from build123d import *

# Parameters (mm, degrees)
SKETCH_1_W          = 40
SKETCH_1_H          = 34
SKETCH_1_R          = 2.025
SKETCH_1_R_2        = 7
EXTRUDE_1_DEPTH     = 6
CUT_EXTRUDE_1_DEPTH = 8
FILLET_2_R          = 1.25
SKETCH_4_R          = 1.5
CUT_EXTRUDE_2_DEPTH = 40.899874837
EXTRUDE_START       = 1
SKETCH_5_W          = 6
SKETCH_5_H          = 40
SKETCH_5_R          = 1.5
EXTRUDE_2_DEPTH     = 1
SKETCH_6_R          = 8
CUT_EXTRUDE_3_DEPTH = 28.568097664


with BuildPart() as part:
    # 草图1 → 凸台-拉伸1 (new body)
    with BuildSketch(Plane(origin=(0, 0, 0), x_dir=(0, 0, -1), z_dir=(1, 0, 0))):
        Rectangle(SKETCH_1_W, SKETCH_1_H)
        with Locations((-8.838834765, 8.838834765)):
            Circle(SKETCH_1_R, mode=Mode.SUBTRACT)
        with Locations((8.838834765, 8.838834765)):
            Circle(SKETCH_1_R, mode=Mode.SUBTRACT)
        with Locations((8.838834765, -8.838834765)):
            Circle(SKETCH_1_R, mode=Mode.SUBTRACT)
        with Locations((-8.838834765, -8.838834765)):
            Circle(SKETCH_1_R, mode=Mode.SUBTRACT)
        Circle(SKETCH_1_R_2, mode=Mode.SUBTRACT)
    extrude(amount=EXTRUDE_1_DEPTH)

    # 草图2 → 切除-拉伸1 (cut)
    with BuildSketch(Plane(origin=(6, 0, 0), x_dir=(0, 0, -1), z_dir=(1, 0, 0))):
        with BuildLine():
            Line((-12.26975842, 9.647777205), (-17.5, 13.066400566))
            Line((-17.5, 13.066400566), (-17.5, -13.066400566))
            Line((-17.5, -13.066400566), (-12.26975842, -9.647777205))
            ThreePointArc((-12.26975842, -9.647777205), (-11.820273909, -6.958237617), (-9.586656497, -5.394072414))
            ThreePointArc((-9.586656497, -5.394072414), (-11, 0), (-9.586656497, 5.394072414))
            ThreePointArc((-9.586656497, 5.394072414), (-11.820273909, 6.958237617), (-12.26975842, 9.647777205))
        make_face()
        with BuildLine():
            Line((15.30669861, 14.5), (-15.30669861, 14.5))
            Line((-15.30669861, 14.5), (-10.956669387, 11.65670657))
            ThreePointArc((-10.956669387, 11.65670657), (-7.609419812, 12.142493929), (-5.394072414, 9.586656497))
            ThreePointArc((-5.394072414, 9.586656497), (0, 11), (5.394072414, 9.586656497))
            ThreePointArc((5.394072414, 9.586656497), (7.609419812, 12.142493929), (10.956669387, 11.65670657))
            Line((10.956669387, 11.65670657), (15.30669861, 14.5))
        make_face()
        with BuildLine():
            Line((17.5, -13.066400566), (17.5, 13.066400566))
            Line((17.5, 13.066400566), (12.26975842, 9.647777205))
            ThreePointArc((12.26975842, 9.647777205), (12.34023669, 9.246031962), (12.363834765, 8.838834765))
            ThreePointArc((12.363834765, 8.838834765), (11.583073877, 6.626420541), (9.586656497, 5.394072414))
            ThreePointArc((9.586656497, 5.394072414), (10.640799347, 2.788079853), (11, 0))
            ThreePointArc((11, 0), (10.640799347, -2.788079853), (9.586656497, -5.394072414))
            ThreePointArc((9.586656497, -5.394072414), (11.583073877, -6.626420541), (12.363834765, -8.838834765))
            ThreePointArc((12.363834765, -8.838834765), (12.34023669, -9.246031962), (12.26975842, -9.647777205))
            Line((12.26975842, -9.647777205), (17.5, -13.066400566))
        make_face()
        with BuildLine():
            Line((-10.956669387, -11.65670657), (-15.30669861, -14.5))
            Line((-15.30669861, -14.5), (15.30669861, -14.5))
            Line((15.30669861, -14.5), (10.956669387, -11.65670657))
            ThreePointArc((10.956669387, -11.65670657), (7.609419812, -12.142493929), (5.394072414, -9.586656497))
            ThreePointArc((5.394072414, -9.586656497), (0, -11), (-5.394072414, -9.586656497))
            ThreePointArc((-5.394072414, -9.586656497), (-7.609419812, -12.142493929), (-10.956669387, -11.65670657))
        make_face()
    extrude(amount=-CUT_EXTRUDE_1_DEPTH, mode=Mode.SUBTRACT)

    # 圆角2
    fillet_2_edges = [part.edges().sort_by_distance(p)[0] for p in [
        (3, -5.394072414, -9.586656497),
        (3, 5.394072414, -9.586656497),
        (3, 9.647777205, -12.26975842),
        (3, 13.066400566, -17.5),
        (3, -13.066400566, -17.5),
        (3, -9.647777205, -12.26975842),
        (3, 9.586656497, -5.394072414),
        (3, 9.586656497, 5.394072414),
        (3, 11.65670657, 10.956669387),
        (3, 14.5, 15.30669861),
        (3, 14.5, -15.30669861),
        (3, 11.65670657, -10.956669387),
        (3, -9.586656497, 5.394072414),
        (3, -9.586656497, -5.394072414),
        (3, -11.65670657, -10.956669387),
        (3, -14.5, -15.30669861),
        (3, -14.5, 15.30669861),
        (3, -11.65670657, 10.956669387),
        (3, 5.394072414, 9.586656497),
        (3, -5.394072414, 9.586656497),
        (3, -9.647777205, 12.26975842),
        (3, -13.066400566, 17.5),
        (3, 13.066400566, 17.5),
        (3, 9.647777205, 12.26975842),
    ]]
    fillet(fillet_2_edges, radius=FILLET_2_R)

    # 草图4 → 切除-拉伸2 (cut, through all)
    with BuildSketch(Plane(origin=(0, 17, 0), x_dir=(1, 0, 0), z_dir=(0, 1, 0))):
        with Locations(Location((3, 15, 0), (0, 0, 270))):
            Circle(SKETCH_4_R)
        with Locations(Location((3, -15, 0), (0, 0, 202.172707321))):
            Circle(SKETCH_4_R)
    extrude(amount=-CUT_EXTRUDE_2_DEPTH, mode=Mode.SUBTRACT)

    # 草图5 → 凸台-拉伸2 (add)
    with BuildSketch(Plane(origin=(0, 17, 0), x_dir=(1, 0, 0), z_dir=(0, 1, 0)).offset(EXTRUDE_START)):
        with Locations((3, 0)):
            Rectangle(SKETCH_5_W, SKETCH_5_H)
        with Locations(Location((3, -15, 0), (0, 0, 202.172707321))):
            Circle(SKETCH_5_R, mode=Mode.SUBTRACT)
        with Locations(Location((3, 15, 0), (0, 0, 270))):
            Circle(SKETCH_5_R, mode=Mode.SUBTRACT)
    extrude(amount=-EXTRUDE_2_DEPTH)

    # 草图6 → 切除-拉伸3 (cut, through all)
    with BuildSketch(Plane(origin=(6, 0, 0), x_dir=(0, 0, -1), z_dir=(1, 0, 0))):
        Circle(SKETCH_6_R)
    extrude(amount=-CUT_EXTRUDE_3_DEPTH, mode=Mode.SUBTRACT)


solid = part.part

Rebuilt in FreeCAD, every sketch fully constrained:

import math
import FreeCAD as App
import Part
import Sketcher

V = App.Vector


def edges_at(feature, points):
    """Names of the edges that pass closest to the given points."""
    edges = feature.Shape.Edges
    near = lambda p: min(range(len(edges)), key=lambda i: edges[i].distToShape(Part.Vertex(*p))[0])
    return sorted({f"Edge{near(p) + 1}" for p in points})

doc = App.newDocument("Part")
body = doc.addObject("PartDesign::Body", "Body")

# Sketch on YZ plane
sketch1 = body.newObject("Sketcher::SketchObject", "Sketch")
sketch1.AttachmentSupport = (doc.getObject("YZ_Plane"), [""])
sketch1.MapMode = "FlatFace"
sketch1.addGeometry(Part.LineSegment(V(17, 20, 0), V(-17, 20, 0)), False)
sketch1.addGeometry(Part.LineSegment(V(-17, 20, 0), V(-17, -20, 0)), False)
sketch1.addGeometry(Part.LineSegment(V(-17, -20, 0), V(17, -20, 0)), False)
sketch1.addGeometry(Part.LineSegment(V(17, -20, 0), V(17, 20, 0)), False)
sketch1.addGeometry(Part.Circle(V(-8.8, 8.8, 0), V(0, 0, 1), 2), False)
sketch1.addGeometry(Part.Circle(V(-8.8, -8.8, 0), V(0, 0, 1), 2), False)
sketch1.addGeometry(Part.Circle(V(8.8, 8.8, 0), V(0, 0, 1), 2), False)
sketch1.addGeometry(Part.Circle(V(0, 0, 0), V(0, 0, 1), 7), False)
sketch1.addGeometry(Part.Circle(V(8.8, -8.8, 0), V(0, 0, 1), 2), False)
sketch1.addConstraint(Sketcher.Constraint("Coincident", 0, 2, 1, 1))
sketch1.addConstraint(Sketcher.Constraint("Coincident", 1, 2, 2, 1))
sketch1.addConstraint(Sketcher.Constraint("Coincident", 2, 2, 3, 1))
sketch1.addConstraint(Sketcher.Constraint("Coincident", 3, 2, 0, 1))
sketch1.addConstraint(Sketcher.Constraint("Horizontal", 0))
sketch1.addConstraint(Sketcher.Constraint("Vertical", 1))
sketch1.addConstraint(Sketcher.Constraint("Horizontal", 2))
sketch1.addConstraint(Sketcher.Constraint("Vertical", 3))
sketch1.addConstraint(Sketcher.Constraint("Coincident", 7, 3, -1, 1))
sketch1.addConstraint(Sketcher.Constraint("Equal", 4, 5))
sketch1.addConstraint(Sketcher.Constraint("Equal", 5, 6))
sketch1.addConstraint(Sketcher.Constraint("Equal", 6, 8))
sketch1.addConstraint(Sketcher.Constraint("Symmetric", 5, 3, 6, 3, -1, 1))
sketch1.addConstraint(Sketcher.Constraint("Symmetric", 4, 3, 8, 3, -1, 1))
sketch1.addConstraint(Sketcher.Constraint("Symmetric", 0, 2, 2, 2, -1, 1))
sketch1.addConstraint(Sketcher.Constraint("Symmetric", 4, 3, 6, 3, -2))
sketch1.addConstraint(Sketcher.Constraint("Diameter", 7, 14.0))
sketch1.addConstraint(Sketcher.Constraint("Diameter", 4, 4.05))
sketch1.addConstraint(Sketcher.Constraint("DistanceX", 0, 2, 0, 1, 34.0))
sketch1.addConstraint(Sketcher.Constraint("DistanceY", 1, 2, 1, 1, 40.0))
sketch1.addConstraint(Sketcher.Constraint("DistanceY", 5, 3, 4, 3, 17.67767))
sketch1.addConstraint(Sketcher.Constraint("DistanceX", 4, 3, 6, 3, 17.67767))
pad1 = body.newObject("PartDesign::Pad", "Pad")
pad1.Profile = sketch1
pad1.Length = 6

# Sketch on YZ plane
sketch2 = body.newObject("Sketcher::SketchObject", "Sketch001")
sketch2.AttachmentSupport = (doc.getObject("YZ_Plane"), [""])
sketch2.MapMode = "FlatFace"
sketch2.AttachmentOffset = App.Placement(V(0, 0, 6), App.Rotation())
sketch2.addGeometry(Part.LineSegment(V(9.6, 12.3, 0), V(13.1, 17.5, 0)), False)
sketch2.addGeometry(Part.LineSegment(V(13.1, 17.5, 0), V(-13.1, 17.5, 0)), False)
sketch2.addGeometry(Part.LineSegment(V(-13.1, 17.5, 0), V(-9.6, 12.3, 0)), False)
sketch2.addGeometry(Part.ArcOfCircle(Part.Circle(V(-8.8, 8.8, 0), V(0, 0, 1), 3.5), math.radians(12), math.radians(103)), False)
sketch2.addGeometry(Part.ArcOfCircle(Part.Circle(V(0, 0, 0), V(0, 0, 1), 11), math.radians(61), math.radians(119)), False)
sketch2.addGeometry(Part.ArcOfCircle(Part.Circle(V(8.8, 8.8, 0), V(0, 0, 1), 3.5), math.radians(77), math.radians(168)), False)
sketch2.addGeometry(Part.LineSegment(V(14.5, -15.3, 0), V(14.5, 15.3, 0)), False)
sketch2.addGeometry(Part.LineSegment(V(14.5, 15.3, 0), V(11.7, 11, 0)), False)
sketch2.addGeometry(Part.ArcOfCircle(Part.Circle(V(8.8, 8.8, 0), V(0, 0, 1), 3.5), math.radians(-78), math.radians(37)), False)
sketch2.addGeometry(Part.ArcOfCircle(Part.Circle(V(0, 0, 0), V(0, 0, 1), 11), math.radians(-29), math.radians(29)), False)
sketch2.addGeometry(Part.ArcOfCircle(Part.Circle(V(8.8, -8.8, 0), V(0, 0, 1), 3.5), math.radians(-37), math.radians(78)), False)
sketch2.addGeometry(Part.LineSegment(V(11.7, -11, 0), V(14.5, -15.3, 0)), False)
sketch2.addGeometry(Part.LineSegment(V(-13.1, -17.5, 0), V(13.1, -17.5, 0)), False)
sketch2.addGeometry(Part.LineSegment(V(13.1, -17.5, 0), V(9.6, -12.3, 0)), False)
sketch2.addGeometry(Part.ArcOfCircle(Part.Circle(V(8.8, -8.8, 0), V(0, 0, 1), 3.5), math.radians(-90), math.radians(-76.73)), False)
sketch2.addGeometry(Part.ArcOfCircle(Part.Circle(V(8.8, -8.8, 0), V(0, 0, 1), 3.5), math.radians(-168), math.radians(-90)), False)
sketch2.addGeometry(Part.ArcOfCircle(Part.Circle(V(0, 0, 0), V(0, 0, 1), 11), math.radians(-90), math.radians(-61)), False)
sketch2.addGeometry(Part.ArcOfCircle(Part.Circle(V(0, 0, 0), V(0, 0, 1), 11), math.radians(-119), math.radians(-90)), False)
sketch2.addGeometry(Part.ArcOfCircle(Part.Circle(V(-8.8, -8.8, 0), V(0, 0, 1), 3.5), math.radians(-90), math.radians(-12)), False)
sketch2.addGeometry(Part.ArcOfCircle(Part.Circle(V(-8.8, -8.8, 0), V(0, 0, 1), 3.5), math.radians(-103.27), math.radians(-90)), False)
sketch2.addGeometry(Part.LineSegment(V(-9.6, -12.3, 0), V(-13.1, -17.5, 0)), False)
sketch2.addGeometry(Part.LineSegment(V(-11.7, 11, 0), V(-14.5, 15.3, 0)), False)
sketch2.addGeometry(Part.LineSegment(V(-14.5, 15.3, 0), V(-14.5, -15.3, 0)), False)
sketch2.addGeometry(Part.LineSegment(V(-14.5, -15.3, 0), V(-11.7, -11, 0)), False)
sketch2.addGeometry(Part.ArcOfCircle(Part.Circle(V(-8.8, -8.8, 0), V(0, 0, 1), 3.5), math.radians(102), math.radians(217)), False)
sketch2.addGeometry(Part.ArcOfCircle(Part.Circle(V(0, 0, 0), V(0, 0, 1), 11), math.radians(151), math.radians(209)), False)
sketch2.addGeometry(Part.ArcOfCircle(Part.Circle(V(-8.8, 8.8, 0), V(0, 0, 1), 3.5), math.radians(143), math.radians(258)), False)
sketch2.addConstraint(Sketcher.Constraint("Coincident", 0, 2, 1, 1))
sketch2.addConstraint(Sketcher.Constraint("Coincident", 1, 2, 2, 1))
sketch2.addConstraint(Sketcher.Constraint("Coincident", 2, 2, 3, 2))
sketch2.addConstraint(Sketcher.Constraint("Coincident", 3, 1, 4, 2))
sketch2.addConstraint(Sketcher.Constraint("Coincident", 4, 1, 5, 2))
sketch2.addConstraint(Sketcher.Constraint("Coincident", 5, 1, 0, 1))
sketch2.addConstraint(Sketcher.Constraint("Coincident", 6, 2, 7, 1))
sketch2.addConstraint(Sketcher.Constraint("Coincident", 7, 2, 8, 2))
sketch2.addConstraint(Sketcher.Constraint("Coincident", 8, 1, 9, 2))
sketch2.addConstraint(Sketcher.Constraint("Coincident", 9, 1, 10, 2))
sketch2.addConstraint(Sketcher.Constraint("Coincident", 10, 1, 11, 1))
sketch2.addConstraint(Sketcher.Constraint("Coincident", 11, 2, 6, 1))
sketch2.addConstraint(Sketcher.Constraint("Coincident", 12, 2, 13, 1))
sketch2.addConstraint(Sketcher.Constraint("Coincident", 13, 2, 14, 2))
sketch2.addConstraint(Sketcher.Constraint("Tangent", 14, 1, 15, 2))
sketch2.addConstraint(Sketcher.Constraint("Coincident", 15, 1, 16, 2))
sketch2.addConstraint(Sketcher.Constraint("Tangent", 16, 1, 17, 2))
sketch2.addConstraint(Sketcher.Constraint("Coincident", 17, 1, 18, 2))
sketch2.addConstraint(Sketcher.Constraint("Tangent", 18, 1, 19, 2))
sketch2.addConstraint(Sketcher.Constraint("Coincident", 19, 1, 20, 1))
sketch2.addConstraint(Sketcher.Constraint("Coincident", 20, 2, 12, 1))
sketch2.addConstraint(Sketcher.Constraint("Coincident", 21, 2, 22, 1))
sketch2.addConstraint(Sketcher.Constraint("Coincident", 22, 2, 23, 1))
sketch2.addConstraint(Sketcher.Constraint("Coincident", 23, 2, 24, 2))
sketch2.addConstraint(Sketcher.Constraint("Coincident", 24, 1, 25, 2))
sketch2.addConstraint(Sketcher.Constraint("Coincident", 25, 1, 26, 2))
sketch2.addConstraint(Sketcher.Constraint("Coincident", 26, 1, 21, 1))
sketch2.addConstraint(Sketcher.Constraint("Horizontal", 1))
sketch2.addConstraint(Sketcher.Constraint("Vertical", 6))
sketch2.addConstraint(Sketcher.Constraint("Horizontal", 12))
sketch2.addConstraint(Sketcher.Constraint("Vertical", 22))
sketch2.addConstraint(Sketcher.Constraint("Coincident", 4, 3, -1, 1))
sketch2.addConstraint(Sketcher.Constraint("Coincident", 9, 3, -1, 1))
sketch2.addConstraint(Sketcher.Constraint("Coincident", 16, 3, -1, 1))
sketch2.addConstraint(Sketcher.Constraint("Coincident", 25, 3, -1, 1))
sketch2.addConstraint(Sketcher.Constraint("Coincident", 8, 3, 5, 3))
sketch2.addConstraint(Sketcher.Constraint("Coincident", 14, 3, 10, 3))
sketch2.addConstraint(Sketcher.Constraint("Coincident", 24, 3, 18, 3))
sketch2.addConstraint(Sketcher.Constraint("Coincident", 26, 3, 3, 3))
sketch2.addConstraint(Sketcher.Constraint("Equal", 3, 5))
sketch2.addConstraint(Sketcher.Constraint("Equal", 5, 8))
sketch2.addConstraint(Sketcher.Constraint("Equal", 4, 9))
sketch2.addConstraint(Sketcher.Constraint("Equal", 8, 10))
sketch2.addConstraint(Sketcher.Constraint("Equal", 10, 14))
sketch2.addConstraint(Sketcher.Constraint("Equal", 14, 15))
sketch2.addConstraint(Sketcher.Constraint("Equal", 9, 16))
sketch2.addConstraint(Sketcher.Constraint("Equal", 16, 17))
sketch2.addConstraint(Sketcher.Constraint("Equal", 15, 18))
sketch2.addConstraint(Sketcher.Constraint("Equal", 18, 19))
sketch2.addConstraint(Sketcher.Constraint("Equal", 19, 24))
sketch2.addConstraint(Sketcher.Constraint("Equal", 17, 25))
sketch2.addConstraint(Sketcher.Constraint("Equal", 24, 26))
sketch2.addConstraint(Sketcher.Constraint("Symmetric", 3, 3, 10, 3, -1, 1))
sketch2.addConstraint(Sketcher.Constraint("Symmetric", 5, 3, 18, 3, -1, 1))
sketch2.addConstraint(Sketcher.Constraint("Symmetric", 1, 2, 12, 2, -1, 1))
sketch2.addConstraint(Sketcher.Constraint("Symmetric", 11, 2, 21, 2, -1, 1))
sketch2.addConstraint(Sketcher.Constraint("Symmetric", 3, 3, 5, 3, -2))
sketch2.addConstraint(Sketcher.Constraint("PointOnObject", 16, 1, -2))
sketch2.addConstraint(Sketcher.Constraint("Parallel", 0, 7))
sketch2.addConstraint(Sketcher.Constraint("Parallel", 2, 11))
sketch2.addConstraint(Sketcher.Constraint("Parallel", 11, 13))
sketch2.addConstraint(Sketcher.Constraint("Parallel", 7, 20))
sketch2.addConstraint(Sketcher.Constraint("Parallel", 13, 21))
sketch2.addConstraint(Sketcher.Constraint("Parallel", 20, 23))
sketch2.addConstraint(Sketcher.Constraint("Horizontal", 2, 2, 5, 1))
sketch2.addConstraint(Sketcher.Constraint("Horizontal", 13, 2, 19, 1))
sketch2.addConstraint(Sketcher.Constraint("Horizontal", 6, 2, 21, 2))
sketch2.addConstraint(Sketcher.Constraint("Horizontal", 11, 2, 22, 2))
sketch2.addConstraint(Sketcher.Constraint("Horizontal", 10, 1, 23, 2))
sketch2.addConstraint(Sketcher.Constraint("Vertical", 15, 3, 14, 1))
sketch2.addConstraint(Sketcher.Constraint("Vertical", 26, 3, 18, 1))
sketch2.addConstraint(Sketcher.Constraint("Radius", 4, 11.0))
sketch2.addConstraint(Sketcher.Constraint("Radius", 3, 3.525))
sketch2.addConstraint(Sketcher.Constraint("DistanceY", -1, 1, 0, 2, 17.5))
sketch2.addConstraint(Sketcher.Constraint("DistanceX", -1, 1, 6, 2, 14.5))
sketch2.addConstraint(Sketcher.Constraint("DistanceX", 1, 2, 1, 1, 26.132801))
sketch2.addConstraint(Sketcher.Constraint("DistanceY", -1, 1, 6, 2, 15.306699))
sketch2.addConstraint(Sketcher.Constraint("DistanceY", 3, 1, 2, 2, 2.683102))
sketch2.addConstraint(Sketcher.Constraint("DistanceY", -1, 1, 2, 2, 12.269758))
sketch2.addConstraint(Sketcher.Constraint("DistanceY", -1, 1, 7, 2, 10.956669))
pocket1 = body.newObject("PartDesign::Pocket", "Pocket")
pocket1.Profile = sketch2
pocket1.Length = 8
doc.recompute()

fillet = body.newObject("PartDesign::Fillet", "Fillet")
fillet.Base = (pocket1, edges_at(pocket1, [
    (3, -5.394, -9.587),
    (3, 5.394, -9.587),
    (3, 9.648, -12.27),
    (3, 13.066, -17.5),
    (3, -13.066, -17.5),
    (3, -9.648, -12.27),
    (3, 9.587, -5.394),
    (3, 9.587, 5.394),
    (3, 11.657, 10.957),
    (3, 14.5, 15.307),
    (3, 14.5, -15.307),
    (3, 11.657, -10.957),
    (3, -9.587, 5.394),
    (3, -9.587, -5.394),
    (3, -11.657, -10.957),
    (3, -14.5, -15.307),
    (3, -14.5, 15.307),
    (3, -11.657, 10.957),
    (3, 5.394, 9.587),
    (3, -5.394, 9.587),
    (3, -9.648, 12.27),
    (3, -13.066, 17.5),
    (3, 13.066, 17.5),
    (3, 9.648, 12.27),
]))
fillet.Radius = 1.25

# Sketch on XZ plane
sketch3 = body.newObject("Sketcher::SketchObject", "Sketch002")
sketch3.AttachmentSupport = (doc.getObject("XZ_Plane"), [""])
sketch3.MapMode = "FlatFace"
sketch3.AttachmentOffset = App.Placement(V(0, 0, -17), App.Rotation())
sketch3.addGeometry(Part.Circle(V(3, -15, 0), V(0, 0, 1), 1.5), False)
sketch3.addGeometry(Part.Circle(V(3, 15, 0), V(0, 0, 1), 1.5), False)
sketch3.addConstraint(Sketcher.Constraint("Equal", 0, 1))
sketch3.addConstraint(Sketcher.Constraint("Symmetric", 0, 3, 1, 3, -1))
sketch3.addConstraint(Sketcher.Constraint("Diameter", 0, 3.0))
sketch3.addConstraint(Sketcher.Constraint("DistanceX", -1, 1, 0, 3, 3.0))
sketch3.addConstraint(Sketcher.Constraint("DistanceY", 0, 3, -1, 1, 15.0))
pocket2 = body.newObject("PartDesign::Pocket", "Pocket001")
pocket2.Profile = sketch3
pocket2.Type = "ThroughAll"
pocket2.Reversed = True

# Sketch on XZ plane
sketch4 = body.newObject("Sketcher::SketchObject", "Sketch003")
sketch4.AttachmentSupport = (doc.getObject("XZ_Plane"), [""])
sketch4.MapMode = "FlatFace"
sketch4.AttachmentOffset = App.Placement(V(0, 0, -18), App.Rotation())
sketch4.addGeometry(Part.LineSegment(V(0, -20, 0), V(0, 20, 0)), False)
sketch4.addGeometry(Part.LineSegment(V(0, 20, 0), V(6, 20, 0)), False)
sketch4.addGeometry(Part.LineSegment(V(6, 20, 0), V(6, -20, 0)), False)
sketch4.addGeometry(Part.LineSegment(V(6, -20, 0), V(0, -20, 0)), False)
sketch4.addGeometry(Part.Circle(V(3, 15, 0), V(0, 0, 1), 1.5), False)
sketch4.addGeometry(Part.Circle(V(3, -15, 0), V(0, 0, 1), 1.5), False)
sketch4.addConstraint(Sketcher.Constraint("Coincident", 0, 2, 1, 1))
sketch4.addConstraint(Sketcher.Constraint("Coincident", 1, 2, 2, 1))
sketch4.addConstraint(Sketcher.Constraint("Coincident", 2, 2, 3, 1))
sketch4.addConstraint(Sketcher.Constraint("Coincident", 3, 2, 0, 1))
sketch4.addConstraint(Sketcher.Constraint("Vertical", 0))
sketch4.addConstraint(Sketcher.Constraint("Horizontal", 1))
sketch4.addConstraint(Sketcher.Constraint("Vertical", 2))
sketch4.addConstraint(Sketcher.Constraint("Horizontal", 3))
sketch4.addConstraint(Sketcher.Constraint("Equal", 4, 5))
sketch4.addConstraint(Sketcher.Constraint("Symmetric", 0, 2, 3, 2, -1, 1))
sketch4.addConstraint(Sketcher.Constraint("Symmetric", 4, 3, 5, 3, -1))
sketch4.addConstraint(Sketcher.Constraint("Diameter", 4, 3.0))
sketch4.addConstraint(Sketcher.Constraint("DistanceX", 1, 1, 1, 2, 6.0))
sketch4.addConstraint(Sketcher.Constraint("DistanceY", 0, 1, 0, 2, 40.0))
sketch4.addConstraint(Sketcher.Constraint("DistanceX", -1, 1, 4, 3, 3.0))
sketch4.addConstraint(Sketcher.Constraint("DistanceY", -1, 1, 4, 3, 15.0))
pad2 = body.newObject("PartDesign::Pad", "Pad001")
pad2.Profile = sketch4
pad2.Length = 1

# Sketch on YZ plane
sketch5 = body.newObject("Sketcher::SketchObject", "Sketch004")
sketch5.AttachmentSupport = (doc.getObject("YZ_Plane"), [""])
sketch5.MapMode = "FlatFace"
sketch5.AttachmentOffset = App.Placement(V(0, 0, 6), App.Rotation())
sketch5.addGeometry(Part.Circle(V(0, 0, 0), V(0, 0, 1), 8), False)
sketch5.addConstraint(Sketcher.Constraint("Coincident", 0, 3, -1, 1))
sketch5.addConstraint(Sketcher.Constraint("Diameter", 0, 16.0))
pocket3 = body.newObject("PartDesign::Pocket", "Pocket002")
pocket3.Profile = sketch5
pocket3.Type = "ThroughAll"

doc.recompute()
